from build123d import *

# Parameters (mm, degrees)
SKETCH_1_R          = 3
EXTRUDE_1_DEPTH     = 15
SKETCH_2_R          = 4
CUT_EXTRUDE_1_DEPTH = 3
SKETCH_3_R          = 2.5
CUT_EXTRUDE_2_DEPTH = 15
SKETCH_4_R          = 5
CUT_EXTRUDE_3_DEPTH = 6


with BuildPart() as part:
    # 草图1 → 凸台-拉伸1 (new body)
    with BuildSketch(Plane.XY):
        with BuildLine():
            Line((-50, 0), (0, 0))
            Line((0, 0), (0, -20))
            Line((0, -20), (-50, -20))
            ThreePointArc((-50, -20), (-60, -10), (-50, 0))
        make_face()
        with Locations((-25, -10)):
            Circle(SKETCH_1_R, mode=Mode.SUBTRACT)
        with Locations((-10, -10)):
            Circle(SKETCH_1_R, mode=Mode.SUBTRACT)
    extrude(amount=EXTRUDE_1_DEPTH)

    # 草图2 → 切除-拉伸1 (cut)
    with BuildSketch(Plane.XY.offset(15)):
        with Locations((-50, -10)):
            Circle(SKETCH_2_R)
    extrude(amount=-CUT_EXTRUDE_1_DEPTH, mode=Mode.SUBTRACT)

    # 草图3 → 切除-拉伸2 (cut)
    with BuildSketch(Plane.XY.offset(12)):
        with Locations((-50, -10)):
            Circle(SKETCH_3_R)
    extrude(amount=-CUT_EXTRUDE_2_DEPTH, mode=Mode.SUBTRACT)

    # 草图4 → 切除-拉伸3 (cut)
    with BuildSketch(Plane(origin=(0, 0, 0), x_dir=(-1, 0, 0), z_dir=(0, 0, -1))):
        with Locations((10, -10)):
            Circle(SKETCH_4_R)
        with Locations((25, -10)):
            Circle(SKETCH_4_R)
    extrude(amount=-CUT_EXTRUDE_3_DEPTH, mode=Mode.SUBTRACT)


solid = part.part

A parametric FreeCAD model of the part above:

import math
import FreeCAD as App
import Part
import Sketcher
from FreeCAD import Vector

doc = App.newDocument("Part")
body = doc.addObject("PartDesign::Body", "Body")

sketch1 = body.newObject("Sketcher::SketchObject", "Sketch")
sketch1.AttachmentSupport = (doc.getObject("XY_Plane"), [""])
sketch1.MapMode = "FlatFace"
sketch1.addGeometry([
    Part.LineSegment(Vector(0, 0, 0), Vector(-50, 0, 0)),
    Part.ArcOfCircle(Part.Circle(Vector(-50, -10, 0), Vector(0, 0, 1), 10), math.radians(90), math.radians(270)),
    Part.LineSegment(Vector(-50, -20, 0), Vector(0, -20, 0)),
    Part.LineSegment(Vector(0, -20, 0), Vector(0, 0, 0)),
    Part.Circle(Vector(-10, -10, 0), Vector(0, 0, 1), 3),
    Part.Circle(Vector(-25, -10, 0), Vector(0, 0, 1), 3),
], False)
sketch1.addConstraint([
    Sketcher.Constraint("Tangent", 0, 2, 1, 1),
    Sketcher.Constraint("Tangent", 1, 2, 2, 1),
    Sketcher.Constraint("Coincident", 2, 2, 3, 1),
    Sketcher.Constraint("Coincident", 3, 2, 0, 1),
    Sketcher.Constraint("Horizontal", 0),
    Sketcher.Constraint("Horizontal", 2),
    Sketcher.Constraint("Vertical", 3),
    Sketcher.Constraint("Coincident", 3, 2, -1, 1),
    Sketcher.Constraint("Equal", 4, 5),
    Sketcher.Constraint("Horizontal", 1, 3, 4, 3),
    Sketcher.Constraint("Horizontal", 4, 3, 5, 3),
    Sketcher.Constraint("Diameter", 4, 6.0),
    Sketcher.Constraint("Radius", 1, 10.0),
    Sketcher.Constraint("DistanceX", 0, 2, 0, 1, 50.0),
    Sketcher.Constraint("DistanceX", 4, 3, -1, 1, 10.0),
    Sketcher.Constraint("DistanceX", 5, 3, -1, 1, 25.0),
])
pad1 = body.newObject("PartDesign::Pad", "Pad")
pad1.Profile = sketch1
pad1.Length = 15

sketch2 = body.newObject("Sketcher::SketchObject", "Sketch001")
sketch2.AttachmentSupport = (doc.getObject("XY_Plane"), [""])
sketch2.MapMode = "FlatFace"
sketch2.AttachmentOffset = App.Placement(Vector(0, 0, 15), App.Rotation())
sketch2.addGeometry(Part.Circle(Vector(-50, -10, 0), Vector(0, 0, 1), 4), False)
sketch2.addConstraint([
    Sketcher.Constraint("Diameter", 0, 8.0),
    Sketcher.Constraint("DistanceX", 0, 3, -1, 1, 50.0),
    Sketcher.Constraint("DistanceY", 0, 3, -1, 1, 10.0),
])
pocket1 = body.newObject("PartDesign::Pocket", "Pocket")
pocket1.Profile = sketch2
pocket1.Length = 3

sketch3 = body.newObject("Sketcher::SketchObject", "Sketch002")
sketch3.AttachmentSupport = (doc.getObject("XY_Plane"), [""])
sketch3.MapMode = "FlatFace"
sketch3.AttachmentOffset = App.Placement(Vector(0, 0, 12), App.Rotation())
sketch3.addGeometry(Part.Circle(Vector(-50, -10, 0), Vector(0, 0, 1), 2.5), False)
sketch3.addConstraint([
    Sketcher.Constraint("Diameter", 0, 5.0),
    Sketcher.Constraint("DistanceX", 0, 3, -1, 1, 50.0),
    Sketcher.Constraint("DistanceY", 0, 3, -1, 1, 10.0),
])
pocket2 = body.newObject("PartDesign::Pocket", "Pocket001")
pocket2.Profile = sketch3
pocket2.Length = 15

sketch4 = body.newObject("Sketcher::SketchObject", "Sketch003")
sketch4.AttachmentSupport = (doc.getObject("XY_Plane"), [""])
sketch4.MapMode = "FlatFace"
sketch4.addGeometry([
    Part.Circle(Vector(-10, -10, 0), Vector(0, 0, 1), 5),
    Part.Circle(Vector(-25, -10, 0), Vector(0, 0, 1), 5),
], False)
sketch4.addConstraint([
    Sketcher.Constraint("Equal", 0, 1),
    Sketcher.Constraint("Horizontal", 0, 3, 1, 3),
    Sketcher.Constraint("Diameter", 0, 10.0),
    Sketcher.Constraint("DistanceX", 0, 3, -1, 1, 10.0),
    Sketcher.Constraint("DistanceY", 0, 3, -1, 1, 10.0),
    Sketcher.Constraint("DistanceX", 1, 3, -1, 1, 25.0),
])
pocket3 = body.newObject("PartDesign::Pocket", "Pocket002")
pocket3.Profile = sketch4
pocket3.Length = 6
pocket3.Reversed = True

doc.recompute()
